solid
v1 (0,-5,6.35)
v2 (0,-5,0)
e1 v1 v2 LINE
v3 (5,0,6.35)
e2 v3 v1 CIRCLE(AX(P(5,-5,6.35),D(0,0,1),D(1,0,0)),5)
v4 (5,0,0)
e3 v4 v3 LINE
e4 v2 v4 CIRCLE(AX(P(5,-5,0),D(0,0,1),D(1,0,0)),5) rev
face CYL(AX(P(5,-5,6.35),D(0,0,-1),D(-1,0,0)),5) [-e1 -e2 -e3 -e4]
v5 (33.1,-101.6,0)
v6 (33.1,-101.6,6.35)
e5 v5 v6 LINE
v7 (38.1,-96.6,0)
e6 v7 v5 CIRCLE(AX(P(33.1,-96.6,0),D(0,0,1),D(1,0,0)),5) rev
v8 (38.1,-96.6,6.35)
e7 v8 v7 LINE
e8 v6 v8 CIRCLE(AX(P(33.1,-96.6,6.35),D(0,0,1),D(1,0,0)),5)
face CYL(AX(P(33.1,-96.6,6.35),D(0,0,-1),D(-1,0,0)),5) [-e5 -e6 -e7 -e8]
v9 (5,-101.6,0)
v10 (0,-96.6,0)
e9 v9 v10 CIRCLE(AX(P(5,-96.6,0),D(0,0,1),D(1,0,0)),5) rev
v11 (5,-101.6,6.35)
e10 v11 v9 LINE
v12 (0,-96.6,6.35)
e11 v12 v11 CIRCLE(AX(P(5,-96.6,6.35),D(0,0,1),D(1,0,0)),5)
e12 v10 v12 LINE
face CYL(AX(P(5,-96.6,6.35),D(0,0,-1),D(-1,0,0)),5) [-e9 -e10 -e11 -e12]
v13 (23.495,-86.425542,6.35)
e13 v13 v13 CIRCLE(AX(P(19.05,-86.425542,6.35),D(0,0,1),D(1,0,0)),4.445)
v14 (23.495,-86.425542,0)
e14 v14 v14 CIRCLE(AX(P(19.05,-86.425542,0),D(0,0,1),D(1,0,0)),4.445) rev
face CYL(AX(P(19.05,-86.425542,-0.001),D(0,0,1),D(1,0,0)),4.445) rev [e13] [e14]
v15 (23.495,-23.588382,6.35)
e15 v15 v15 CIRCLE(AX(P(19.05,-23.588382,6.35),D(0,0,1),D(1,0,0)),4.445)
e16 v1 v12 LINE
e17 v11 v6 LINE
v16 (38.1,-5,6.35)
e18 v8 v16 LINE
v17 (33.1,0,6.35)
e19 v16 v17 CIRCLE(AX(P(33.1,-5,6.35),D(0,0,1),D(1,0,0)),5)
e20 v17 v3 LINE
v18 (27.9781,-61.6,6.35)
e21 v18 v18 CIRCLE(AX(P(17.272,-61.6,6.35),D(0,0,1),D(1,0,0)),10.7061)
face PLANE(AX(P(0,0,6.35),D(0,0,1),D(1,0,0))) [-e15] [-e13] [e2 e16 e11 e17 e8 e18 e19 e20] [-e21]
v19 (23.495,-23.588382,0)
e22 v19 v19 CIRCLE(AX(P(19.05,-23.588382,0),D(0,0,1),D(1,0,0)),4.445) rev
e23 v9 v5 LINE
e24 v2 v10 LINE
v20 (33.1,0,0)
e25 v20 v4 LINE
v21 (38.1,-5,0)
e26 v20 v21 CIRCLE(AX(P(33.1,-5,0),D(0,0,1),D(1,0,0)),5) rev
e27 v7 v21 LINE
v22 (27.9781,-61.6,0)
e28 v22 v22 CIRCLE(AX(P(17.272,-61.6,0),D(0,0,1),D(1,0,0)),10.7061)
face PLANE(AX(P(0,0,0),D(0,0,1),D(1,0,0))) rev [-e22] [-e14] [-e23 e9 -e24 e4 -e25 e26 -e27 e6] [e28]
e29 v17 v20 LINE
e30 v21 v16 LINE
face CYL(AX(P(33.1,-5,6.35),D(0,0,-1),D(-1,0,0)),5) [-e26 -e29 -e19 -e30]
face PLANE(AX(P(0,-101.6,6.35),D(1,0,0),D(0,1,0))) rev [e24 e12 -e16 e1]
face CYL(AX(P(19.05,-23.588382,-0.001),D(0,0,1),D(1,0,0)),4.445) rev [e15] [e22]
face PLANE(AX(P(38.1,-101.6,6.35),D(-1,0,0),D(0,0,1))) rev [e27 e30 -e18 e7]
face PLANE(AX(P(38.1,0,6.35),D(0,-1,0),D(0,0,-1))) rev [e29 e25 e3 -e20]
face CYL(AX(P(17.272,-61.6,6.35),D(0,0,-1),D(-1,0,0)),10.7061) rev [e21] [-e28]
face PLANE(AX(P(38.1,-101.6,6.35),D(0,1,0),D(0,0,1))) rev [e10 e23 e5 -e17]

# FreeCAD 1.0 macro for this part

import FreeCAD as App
import Part
import Sketcher
Q = App.Units.Quantity


def edges_at(feature, points):
    """Names of the edges that pass closest to the given points."""
    edges = feature.Shape.Edges
    near = lambda p: min(range(len(edges)), key=lambda i: edges[i].distToShape(Part.Vertex(*p))[0])
    return sorted({f"Edge{near(p) + 1}" for p in points})


def add_polygon(sketch, points):
    """Adds a closed chain of lines whose ends are joined by coincident constraints."""
    first, n = sketch.GeometryCount, len(points)
    for a, b in zip(points, points[1:] + points[:1]):
        sketch.addGeometry(Part.LineSegment(App.Vector(*a, 0), App.Vector(*b, 0)), False)
    for i in range(n):
        sketch.addConstraint(Sketcher.Constraint("Coincident", first + i, 2, first + (i + 1) % n, 1))

doc = App.newDocument("Part")
body = doc.addObject("PartDesign::Body", "Body")

sketch1 = body.newObject("Sketcher::SketchObject", "Sketch")
sketch1.AttachmentSupport = (doc.getObject("XY_Plane"), [""])
sketch1.MapMode = "FlatFace"
add_polygon(sketch1, [(0, 0), (0, -102), (38, -102), (38, 0)])
sketch1.addGeometry(Part.Circle(App.Vector(17, -62, 0), App.Vector(0, 0, 1), 11), False)
sketch1.addConstraint([
    Sketcher.Constraint("Vertical", 0),
    Sketcher.Constraint("Horizontal", 1),
    Sketcher.Constraint("Vertical", 2),
    Sketcher.Constraint("Horizontal", 3),
    Sketcher.Constraint("Coincident", 3, 2, -1, 1),
    Sketcher.Constraint("DistanceY", 0, 2, 0, 1, Q("4 in")),
    Sketcher.Constraint("Diameter", 4, Q("0.843 in")),
    Sketcher.Constraint("DistanceX", 1, 1, 1, 2, Q("1.5 in")),
    Sketcher.Constraint("DistanceX", -1, 1, 4, 3, Q("0.68 in")),
    Sketcher.Constraint("DistanceY", 4, 3, -1, 1, Q("61.6 mm")),
])
pad1 = body.newObject("PartDesign::Pad", "Pad")
pad1.Profile = sketch1
pad1.Length = Q("0.25 in")

sketch2 = body.newObject("Sketcher::SketchObject", "Sketch001")
sketch2.AttachmentSupport = (doc.getObject("XY_Plane"), [""])
sketch2.MapMode = "FlatFace"
sketch2.AttachmentOffset = App.Placement(App.Vector(0, 0, 0.25 * 25.4), App.Rotation())
sketch2.addGeometry(Part.Circle(App.Vector(19.1, -23.6, 0), App.Vector(0, 0, 1), 4.4), False)
sketch2.addConstraint([
    Sketcher.Constraint("Diameter", 0, Q("0.35 in")),
    Sketcher.Constraint("DistanceX", -1, 1, 0, 3, Q("0.75 in")),
    Sketcher.Constraint("DistanceY", 0, 3, -1, 1, Q("23.588382 mm")),
])
pocket1 = body.newObject("PartDesign::Pocket", "Pocket")
pocket1.Profile = sketch2
pocket1.Type = "UpToFirst"

sketch3 = body.newObject("Sketcher::SketchObject", "Sketch002")
sketch3.AttachmentSupport = (doc.getObject("XY_Plane"), [""])
sketch3.MapMode = "FlatFace"
sketch3.AttachmentOffset = App.Placement(App.Vector(0, 0, 0.25 * 25.4), App.Rotation())
sketch3.addGeometry(Part.Circle(App.Vector(19.1, -86.4, 0), App.Vector(0, 0, 1), 4.4), False)
sketch3.addConstraint([
    Sketcher.Constraint("Diameter", 0, Q("0.35 in")),
    Sketcher.Constraint("DistanceX", -1, 1, 0, 3, Q("0.75 in")),
    Sketcher.Constraint("DistanceY", 0, 3, -1, 1, Q("86.425542 mm")),
])
pocket2 = body.newObject("PartDesign::Pocket", "Pocket001")
pocket2.Profile = sketch3
pocket2.Type = "UpToFirst"
doc.recompute()

fillet = body.newObject("PartDesign::Fillet", "Fillet")
fillet.Base = (pocket2, edges_at(pocket2, [
    (0, 0, 3.175),
    (38.1, 0, 3.175),
    (38.1, -101.6, 3.175),
    (0, -101.6, 3.175),
]))
fillet.Radius = 5

doc.recompute()
